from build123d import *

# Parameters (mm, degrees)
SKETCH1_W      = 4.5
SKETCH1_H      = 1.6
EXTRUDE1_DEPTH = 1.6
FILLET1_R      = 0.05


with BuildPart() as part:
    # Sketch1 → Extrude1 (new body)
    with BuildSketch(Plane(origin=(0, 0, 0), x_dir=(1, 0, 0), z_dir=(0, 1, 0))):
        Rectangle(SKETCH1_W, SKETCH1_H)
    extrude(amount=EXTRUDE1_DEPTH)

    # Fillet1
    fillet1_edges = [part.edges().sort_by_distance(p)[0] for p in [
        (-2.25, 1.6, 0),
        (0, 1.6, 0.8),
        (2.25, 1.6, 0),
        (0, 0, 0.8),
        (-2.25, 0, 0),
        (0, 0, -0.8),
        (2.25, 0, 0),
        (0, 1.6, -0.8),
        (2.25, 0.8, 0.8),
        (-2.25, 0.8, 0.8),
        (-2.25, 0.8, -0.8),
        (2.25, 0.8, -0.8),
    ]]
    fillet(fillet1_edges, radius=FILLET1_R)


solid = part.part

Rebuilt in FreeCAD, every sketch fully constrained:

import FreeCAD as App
import Part
import Sketcher

doc = App.newDocument("Part")
params = doc.addObject("Spreadsheet::Sheet", "Params")
for row, (alias, value) in enumerate([
    ("sketch1_width", "4.5 mm"),
    ("sketch1_height", "1.6 mm"),
    ("pad1_length", "1.6 mm"),
    ("fillet_radius", "0.05 mm"),
], start=1):
    params.set(f"A{row}", alias)
    params.set(f"B{row}", "=" + value)
    params.setAlias(f"B{row}", alias)

body = doc.addObject("PartDesign::Body", "Body")

sketch1 = doc.addObject("Sketcher::SketchObject", "Sketch")
body.addObject(sketch1)
sketch1.AttachmentSupport = (doc.XZ_Plane, [""])
sketch1.MapMode = "FlatFace"
sketch1.addGeometry([
    Part.LineSegment(App.Vector(-2.2, -0.8, 0), App.Vector(-2.2, 0.8, 0)),
    Part.LineSegment(App.Vector(-2.2, 0.8, 0), App.Vector(2.2, 0.8, 0)),
    Part.LineSegment(App.Vector(2.2, 0.8, 0), App.Vector(2.2, -0.8, 0)),
    Part.LineSegment(App.Vector(2.2, -0.8, 0), App.Vector(-2.2, -0.8, 0)),
], False)
sketch1.addConstraint([
    Sketcher.Constraint("Coincident", 0, 2, 1, 1),
    Sketcher.Constraint("Coincident", 1, 2, 2, 1),
    Sketcher.Constraint("Coincident", 2, 2, 3, 1),
    Sketcher.Constraint("Coincident", 3, 2, 0, 1),
    Sketcher.Constraint("Vertical", 0),
    Sketcher.Constraint("Horizontal", 1),
    Sketcher.Constraint("Vertical", 2),
    Sketcher.Constraint("Horizontal", 3),
    Sketcher.Constraint("Symmetric", 0, 2, 2, 2, -1, 1),
    Sketcher.Constraint("DistanceX", 1, 1, 1, 2, 4.5),
    Sketcher.Constraint("DistanceY", 0, 1, 0, 2, 1.6),
])
sketch1.setExpression("Constraints[9]", "Params.sketch1_width")
sketch1.setExpression("Constraints[10]", "Params.sketch1_height")
pad1 = doc.addObject("PartDesign::Pad", "Pad")
body.addObject(pad1)
pad1.Profile = sketch1
pad1.setExpression("Length", "Params.pad1_length")
pad1.Reversed = True
doc.recompute()

fillet = doc.addObject("PartDesign::Fillet", "Fillet")
body.addObject(fillet)
fillet.Base = (pad1, ["Edge1"])
fillet.UseAllEdges = True
fillet.setExpression("Radius", "Params.fillet_radius")

doc.recompute()
